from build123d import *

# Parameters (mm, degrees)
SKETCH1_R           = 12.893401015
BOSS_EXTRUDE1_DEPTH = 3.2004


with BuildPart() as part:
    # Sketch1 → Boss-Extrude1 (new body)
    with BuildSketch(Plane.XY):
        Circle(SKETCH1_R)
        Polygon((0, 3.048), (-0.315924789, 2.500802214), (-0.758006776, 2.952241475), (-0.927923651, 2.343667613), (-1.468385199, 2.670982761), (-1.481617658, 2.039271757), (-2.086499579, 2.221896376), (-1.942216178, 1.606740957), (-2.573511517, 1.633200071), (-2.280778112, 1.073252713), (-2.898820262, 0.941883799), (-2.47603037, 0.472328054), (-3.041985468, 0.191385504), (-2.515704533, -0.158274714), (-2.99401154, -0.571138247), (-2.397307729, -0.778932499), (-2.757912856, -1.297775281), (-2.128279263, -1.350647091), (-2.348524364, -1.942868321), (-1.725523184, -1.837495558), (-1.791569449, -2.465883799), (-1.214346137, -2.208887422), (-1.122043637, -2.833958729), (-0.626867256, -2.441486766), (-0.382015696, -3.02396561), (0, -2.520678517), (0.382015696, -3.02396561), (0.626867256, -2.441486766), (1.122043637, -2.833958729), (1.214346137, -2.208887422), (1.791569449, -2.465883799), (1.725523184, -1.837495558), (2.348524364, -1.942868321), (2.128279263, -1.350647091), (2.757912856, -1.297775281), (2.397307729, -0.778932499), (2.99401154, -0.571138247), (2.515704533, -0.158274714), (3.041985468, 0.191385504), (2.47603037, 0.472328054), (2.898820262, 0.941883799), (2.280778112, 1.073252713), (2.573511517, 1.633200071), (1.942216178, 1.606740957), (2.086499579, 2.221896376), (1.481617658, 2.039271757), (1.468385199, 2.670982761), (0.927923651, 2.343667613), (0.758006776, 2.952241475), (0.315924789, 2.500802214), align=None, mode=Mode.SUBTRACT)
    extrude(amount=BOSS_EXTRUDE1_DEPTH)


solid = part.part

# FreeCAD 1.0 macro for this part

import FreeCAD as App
import Part
import Sketcher
Q = App.Units.Quantity


def add_polygon(sketch, points):
    """Adds a closed chain of lines whose ends are joined by coincident constraints."""
    first, n = sketch.GeometryCount, len(points)
    for a, b in zip(points, points[1:] + points[:1]):
        sketch.addGeometry(Part.LineSegment(App.Vector(*a, 0), App.Vector(*b, 0)), False)
    for i in range(n):
        sketch.addConstraint(Sketcher.Constraint("Coincident", first + i, 2, first + (i + 1) % n, 1))

doc = App.newDocument("Part")
body = doc.addObject("PartDesign::Body", "Body")

# Sketch on XY plane
sketch1 = body.newObject("Sketcher::SketchObject", "Sketch")
sketch1.AttachmentSupport = (doc.getObject("XY_Plane"), [""])
sketch1.MapMode = "FlatFace"
sketch1.addGeometry(Part.Circle(App.Vector(0, 0, 0), App.Vector(0, 0, 1), 12.9), False)  # 0
add_polygon(sketch1, [(-0.3, 2.5), (0, 3), (0.3, 2.5), (0.8, 3), (0.9, 2.3), (1.5, 2.7), (1.5, 2), (2.1, 2.2), (1.9, 1.6), (2.6, 1.6), (2.3, 1.1), (2.9, 0.9), (2.5, 0.5), (3, 0.2), (2.5, -0.2), (3, -0.6), (2.4, -0.8), (2.8, -1.3), (2.1, -1.4), (2.3, -1.9), (1.7, -1.8), (1.8, -2.5), (1.2, -2.2), (1.1, -2.8), (0.6, -2.4), (0.4, -3), (0, -2.5), (-0.4, -3), (-0.6, -2.4), (-1.1, -2.8), (-1.2, -2.2), (-1.8, -2.5), (-1.7, -1.8), (-2.3, -1.9), (-2.1, -1.4), (-2.8, -1.3), (-2.4, -0.8), (-3, -0.6), (-2.5, -0.2), (-3, 0.2), (-2.5, 0.5), (-2.9, 0.9), (-2.3, 1.1), (-2.6, 1.6), (-1.9, 1.6), (-2.1, 2.2), (-1.5, 2), (-1.5, 2.7), (-0.9, 2.3), (-0.8, 3)])  # lines 1-50
sketch1.addConstraint(Sketcher.Constraint("Coincident", 0, 3, -1, 1))
sketch1.addConstraint(Sketcher.Constraint("Symmetric", 25, 2, 27, 2, -2))
sketch1.addConstraint(Sketcher.Constraint("Symmetric", 24, 2, 28, 2, -2))
sketch1.addConstraint(Sketcher.Constraint("Symmetric", 23, 2, 29, 2, -2))
sketch1.addConstraint(Sketcher.Constraint("Symmetric", 22, 2, 30, 2, -2))
sketch1.addConstraint(Sketcher.Constraint("Symmetric", 21, 2, 31, 2, -2))
sketch1.addConstraint(Sketcher.Constraint("Symmetric", 20, 2, 32, 2, -2))
sketch1.addConstraint(Sketcher.Constraint("Symmetric", 19, 2, 33, 2, -2))
sketch1.addConstraint(Sketcher.Constraint("Symmetric", 18, 2, 34, 2, -2))
sketch1.addConstraint(Sketcher.Constraint("Symmetric", 17, 2, 35, 2, -2))
sketch1.addConstraint(Sketcher.Constraint("Symmetric", 16, 2, 36, 2, -2))
sketch1.addConstraint(Sketcher.Constraint("Symmetric", 15, 2, 37, 2, -2))
sketch1.addConstraint(Sketcher.Constraint("Symmetric", 14, 2, 38, 2, -2))
sketch1.addConstraint(Sketcher.Constraint("Symmetric", 13, 2, 39, 2, -2))
sketch1.addConstraint(Sketcher.Constraint("Symmetric", 12, 2, 40, 2, -2))
sketch1.addConstraint(Sketcher.Constraint("Symmetric", 11, 2, 41, 2, -2))
sketch1.addConstraint(Sketcher.Constraint("Symmetric", 10, 2, 42, 2, -2))
sketch1.addConstraint(Sketcher.Constraint("Symmetric", 9, 2, 43, 2, -2))
sketch1.addConstraint(Sketcher.Constraint("Symmetric", 8, 2, 44, 2, -2))
sketch1.addConstraint(Sketcher.Constraint("Symmetric", 7, 2, 45, 2, -2))
sketch1.addConstraint(Sketcher.Constraint("Symmetric", 6, 2, 46, 2, -2))
sketch1.addConstraint(Sketcher.Constraint("Symmetric", 5, 2, 47, 2, -2))
sketch1.addConstraint(Sketcher.Constraint("Symmetric", 4, 2, 48, 2, -2))
sketch1.addConstraint(Sketcher.Constraint("Symmetric", 3, 2, 49, 2, -2))
sketch1.addConstraint(Sketcher.Constraint("Symmetric", 2, 2, 50, 2, -2))
sketch1.addConstraint(Sketcher.Constraint("PointOnObject", 1, 2, -2))
sketch1.addConstraint(Sketcher.Constraint("PointOnObject", 26, 2, -2))
sketch1.addConstraint(Sketcher.Constraint("Equal", 2, 3))
sketch1.addConstraint(Sketcher.Constraint("Equal", 3, 4))
sketch1.addConstraint(Sketcher.Constraint("Equal", 4, 5))
sketch1.addConstraint(Sketcher.Constraint("Equal", 5, 6))
sketch1.addConstraint(Sketcher.Constraint("Equal", 6, 7))
sketch1.addConstraint(Sketcher.Constraint("Equal", 7, 8))
sketch1.addConstraint(Sketcher.Constraint("Equal", 8, 9))
sketch1.addConstraint(Sketcher.Constraint("Equal", 9, 10))
sketch1.addConstraint(Sketcher.Constraint("Equal", 10, 11))
sketch1.addConstraint(Sketcher.Constraint("Equal", 11, 12))
sketch1.addConstraint(Sketcher.Constraint("Equal", 12, 13))
sketch1.addConstraint(Sketcher.Constraint("Equal", 13, 14))
sketch1.addConstraint(Sketcher.Constraint("Equal", 14, 15))
sketch1.addConstraint(Sketcher.Constraint("Equal", 15, 16))
sketch1.addConstraint(Sketcher.Constraint("Equal", 16, 17))
sketch1.addConstraint(Sketcher.Constraint("Equal", 17, 18))
sketch1.addConstraint(Sketcher.Constraint("Equal", 18, 19))
sketch1.addConstraint(Sketcher.Constraint("Equal", 19, 20))
sketch1.addConstraint(Sketcher.Constraint("Equal", 20, 21))
sketch1.addConstraint(Sketcher.Constraint("Equal", 21, 22))
sketch1.addConstraint(Sketcher.Constraint("Equal", 22, 23))
sketch1.addConstraint(Sketcher.Constraint("Equal", 23, 24))
sketch1.addConstraint(Sketcher.Constraint("Equal", 24, 25))
sketch1.addConstraint(Sketcher.Constraint("Equal", 25, 26))
sketch1.addConstraint(Sketcher.Constraint("Angle", 1, Q("60 deg")))
sketch1.addConstraint(Sketcher.Constraint("Angle", 11, Q("-12 deg")))
sketch1.addConstraint(Sketcher.Constraint("Angle", 12, Q("-132 deg")))
sketch1.addConstraint(Sketcher.Constraint("Angle", 21, Q("-84 deg")))
sketch1.addConstraint(Sketcher.Constraint("Angle", 22, Q("156 deg")))
sketch1.addConstraint(Sketcher.Constraint("Angle", 3, Q("45.6 deg")))
sketch1.addConstraint(Sketcher.Constraint("Angle", 4, Q("-74.4 deg")))
sketch1.addConstraint(Sketcher.Constraint("Angle", 5, Q("31.2 deg")))
sketch1.addConstraint(Sketcher.Constraint("Angle", 6, Q("-88.8 deg")))
sketch1.addConstraint(Sketcher.Constraint("Angle", 7, Q("16.8 deg")))
sketch1.addConstraint(Sketcher.Constraint("Angle", 8, Q("-103.2 deg")))
sketch1.addConstraint(Sketcher.Constraint("Angle", 9, Q("2.4 deg")))
sketch1.addConstraint(Sketcher.Constraint("Angle", 10, Q("-117.6 deg")))
sketch1.addConstraint(Sketcher.Constraint("Angle", 13, Q("-26.4 deg")))
sketch1.addConstraint(Sketcher.Constraint("Angle", 14, Q("-146.4 deg")))
sketch1.addConstraint(Sketcher.Constraint("Angle", 15, Q("-40.8 deg")))
sketch1.addConstraint(Sketcher.Constraint("Angle", 16, Q("-160.8 deg")))
sketch1.addConstraint(Sketcher.Constraint("Angle", 17, Q("-55.2 deg")))
sketch1.addConstraint(Sketcher.Constraint("Angle", 18, Q("-175.2 deg")))
sketch1.addConstraint(Sketcher.Constraint("Angle", 19, Q("-69.6 deg")))
sketch1.addConstraint(Sketcher.Constraint("Angle", 20, Q("170.4 deg")))
sketch1.addConstraint(Sketcher.Constraint("Angle", 23, Q("-98.4 deg")))
sketch1.addConstraint(Sketcher.Constraint("Angle", 24, Q("141.6 deg")))
sketch1.addConstraint(Sketcher.Constraint("Angle", 25, Q("-112.8 deg")))
sketch1.addConstraint(Sketcher.Constraint("DistanceY", -1, 1, 1, 2, Q("0.12 in")))
sketch1.addConstraint(Sketcher.Constraint("Diameter", 0, 25.786802))
sketch1.addConstraint(Sketcher.Constraint("DistanceY", 2, 2, 5, 2, Q("0.0067 in")))
pad1 = body.newObject("PartDesign::Pad", "Pad")
pad1.Profile = sketch1
pad1.Length = Q("0.126 in")

doc.recompute()
